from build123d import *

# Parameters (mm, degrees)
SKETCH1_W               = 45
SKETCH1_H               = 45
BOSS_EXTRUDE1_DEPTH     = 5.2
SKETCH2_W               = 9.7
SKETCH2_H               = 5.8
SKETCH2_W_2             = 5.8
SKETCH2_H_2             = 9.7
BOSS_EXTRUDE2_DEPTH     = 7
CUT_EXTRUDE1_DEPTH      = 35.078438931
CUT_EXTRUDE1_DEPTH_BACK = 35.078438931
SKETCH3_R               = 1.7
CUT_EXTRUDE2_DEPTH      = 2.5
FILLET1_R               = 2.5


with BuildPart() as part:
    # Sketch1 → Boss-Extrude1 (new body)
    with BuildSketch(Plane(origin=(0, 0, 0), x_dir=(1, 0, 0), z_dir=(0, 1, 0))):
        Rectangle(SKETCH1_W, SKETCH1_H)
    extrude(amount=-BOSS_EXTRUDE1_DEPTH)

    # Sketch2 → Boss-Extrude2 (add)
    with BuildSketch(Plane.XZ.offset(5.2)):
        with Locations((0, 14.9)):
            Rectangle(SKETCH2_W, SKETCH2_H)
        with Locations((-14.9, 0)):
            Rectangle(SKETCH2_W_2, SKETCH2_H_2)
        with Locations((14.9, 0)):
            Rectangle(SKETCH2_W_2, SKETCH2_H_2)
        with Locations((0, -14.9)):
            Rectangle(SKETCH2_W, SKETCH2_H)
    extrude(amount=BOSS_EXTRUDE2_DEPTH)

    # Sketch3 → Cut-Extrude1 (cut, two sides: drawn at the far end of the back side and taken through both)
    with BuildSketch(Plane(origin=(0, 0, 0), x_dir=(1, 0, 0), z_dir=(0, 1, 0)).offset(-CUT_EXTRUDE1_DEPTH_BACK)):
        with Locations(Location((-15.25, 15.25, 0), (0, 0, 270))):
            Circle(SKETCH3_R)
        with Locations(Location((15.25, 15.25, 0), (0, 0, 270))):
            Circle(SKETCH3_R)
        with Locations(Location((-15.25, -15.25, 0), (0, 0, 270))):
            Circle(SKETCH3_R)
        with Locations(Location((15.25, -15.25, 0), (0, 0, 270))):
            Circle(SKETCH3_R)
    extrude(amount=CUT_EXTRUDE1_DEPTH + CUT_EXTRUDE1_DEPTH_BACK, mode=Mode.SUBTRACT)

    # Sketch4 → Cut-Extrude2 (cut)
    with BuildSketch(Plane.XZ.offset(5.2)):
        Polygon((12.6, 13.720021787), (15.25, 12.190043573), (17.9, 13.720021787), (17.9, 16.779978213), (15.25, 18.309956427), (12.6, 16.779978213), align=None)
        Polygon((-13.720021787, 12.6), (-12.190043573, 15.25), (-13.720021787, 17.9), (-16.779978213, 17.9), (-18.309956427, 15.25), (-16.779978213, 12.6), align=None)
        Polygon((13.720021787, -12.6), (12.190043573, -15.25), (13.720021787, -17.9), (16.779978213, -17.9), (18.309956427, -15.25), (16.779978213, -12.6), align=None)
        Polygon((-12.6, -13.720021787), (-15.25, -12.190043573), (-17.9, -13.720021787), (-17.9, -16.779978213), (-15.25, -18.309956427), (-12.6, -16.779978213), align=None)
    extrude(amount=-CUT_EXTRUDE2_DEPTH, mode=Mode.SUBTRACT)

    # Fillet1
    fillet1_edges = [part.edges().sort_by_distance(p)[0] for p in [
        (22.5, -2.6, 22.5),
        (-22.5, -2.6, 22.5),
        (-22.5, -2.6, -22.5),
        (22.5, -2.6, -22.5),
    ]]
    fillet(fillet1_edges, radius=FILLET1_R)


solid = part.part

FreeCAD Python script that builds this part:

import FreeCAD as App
import Part
import Sketcher
Q = App.Units.Quantity


def edges_at(feature, points):
    """Names of the edges that pass closest to the given points."""
    edges = feature.Shape.Edges
    near = lambda p: min(range(len(edges)), key=lambda i: edges[i].distToShape(Part.Vertex(*p))[0])
    return sorted({f"Edge{near(p) + 1}" for p in points})


def add_polygon(sketch, points):
    """Adds a closed chain of lines whose ends are joined by coincident constraints."""
    first, n = sketch.GeometryCount, len(points)
    for a, b in zip(points, points[1:] + points[:1]):
        sketch.addGeometry(Part.LineSegment(App.Vector(*a, 0), App.Vector(*b, 0)), False)
    for i in range(n):
        sketch.addConstraint(Sketcher.Constraint("Coincident", first + i, 2, first + (i + 1) % n, 1))

doc = App.newDocument("Part")
body = doc.addObject("PartDesign::Body", "Body")

sketch1 = doc.addObject("Sketcher::SketchObject", "Sketch")
body.addObject(sketch1)
sketch1.AttachmentSupport = (doc.XZ_Plane, [""])
sketch1.MapMode = "FlatFace"
add_polygon(sketch1, [(-22, -22), (-22, 22), (22, 22), (22, -22)])
sketch1.addConstraint([
    Sketcher.Constraint("Vertical", 0),
    Sketcher.Constraint("Horizontal", 1),
    Sketcher.Constraint("Vertical", 2),
    Sketcher.Constraint("Horizontal", 3),
    Sketcher.Constraint("Symmetric", 0, 2, 2, 2, -1, 1),
    Sketcher.Constraint("Equal", 3, 0),
    Sketcher.Constraint("DistanceX", 1, 1, 1, 2, 45.0),
])
pad1 = doc.addObject("PartDesign::Pad", "Pad")
body.addObject(pad1)
pad1.Profile = sketch1
pad1.Length = 5.2

sketch2 = doc.addObject("Sketcher::SketchObject", "Sketch001")
body.addObject(sketch2)
sketch2.AttachmentSupport = (doc.XZ_Plane, [""])
sketch2.MapMode = "FlatFace"
sketch2.AttachmentOffset = App.Placement(App.Vector(0, 0, 5.2), App.Rotation())
add_polygon(sketch2, [(-5, 18), (-5, 12), (5, 12), (5, 18)])
add_polygon(sketch2, [(-18, 5), (-18, -5), (-12, -5), (-12, 5)])
add_polygon(sketch2, [(12, 5), (12, -5), (18, -5), (18, 5)])
add_polygon(sketch2, [(-5, -12), (-5, -18), (5, -18), (5, -12)])
sketch2.addConstraint([
    Sketcher.Constraint("Vertical", 0),
    Sketcher.Constraint("Horizontal", 1),
    Sketcher.Constraint("Vertical", 2),
    Sketcher.Constraint("Horizontal", 3),
    Sketcher.Constraint("Vertical", 4),
    Sketcher.Constraint("Horizontal", 5),
    Sketcher.Constraint("Vertical", 6),
    Sketcher.Constraint("Horizontal", 7),
    Sketcher.Constraint("Vertical", 8),
    Sketcher.Constraint("Horizontal", 9),
    Sketcher.Constraint("Vertical", 10),
    Sketcher.Constraint("Horizontal", 11),
    Sketcher.Constraint("Vertical", 12),
    Sketcher.Constraint("Horizontal", 13),
    Sketcher.Constraint("Vertical", 14),
    Sketcher.Constraint("Horizontal", 15),
    Sketcher.Constraint("Symmetric", 6, 2, 8, 2, -1, 1),
    Sketcher.Constraint("Symmetric", 4, 2, 10, 2, -1, 1),
    Sketcher.Constraint("Symmetric", 2, 2, 12, 2, -1, 1),
    Sketcher.Constraint("Symmetric", 0, 2, 14, 2, -1, 1),
    Sketcher.Constraint("Horizontal", 5, 2, 8, 2),
    Sketcher.Constraint("Vertical", 3, 2, 12, 2),
    Sketcher.Constraint("Equal", 11, 0),
    Sketcher.Constraint("Equal", 15, 4),
    Sketcher.Constraint("DistanceX", 1, 1, 1, 2, 9.7),
    Sketcher.Constraint("DistanceX", 5, 1, 5, 2, 5.8),
    Sketcher.Constraint("DistanceY", -1, 1, 0, 2, 12.0),
    Sketcher.Constraint("DistanceX", 5, 2, -1, 1, 12.0),
])
pad2 = doc.addObject("PartDesign::Pad", "Pad001")
body.addObject(pad2)
pad2.Profile = sketch2
pad2.Length = 7

sketch3 = doc.addObject("Sketcher::SketchObject", "Sketch002")
body.addObject(sketch3)
sketch3.AttachmentSupport = (doc.XZ_Plane, [""])
sketch3.MapMode = "FlatFace"
sketch3.addGeometry([
    Part.Circle(App.Vector(-15.2, -15.2, 0), App.Vector(0, 0, 1), 1.7),
    Part.Circle(App.Vector(15.2, -15.2, 0), App.Vector(0, 0, 1), 1.7),
    Part.Circle(App.Vector(-15.2, 15.2, 0), App.Vector(0, 0, 1), 1.7),
    Part.Circle(App.Vector(15.2, 15.2, 0), App.Vector(0, 0, 1), 1.7),
], False)
sketch3.addConstraint([
    Sketcher.Constraint("Equal", 0, 1),
    Sketcher.Constraint("Equal", 1, 2),
    Sketcher.Constraint("Equal", 2, 3),
    Sketcher.Constraint("Symmetric", 1, 3, 2, 3, -1, 1),
    Sketcher.Constraint("Symmetric", 0, 3, 3, 3, -1, 1),
    Sketcher.Constraint("Symmetric", 0, 3, 1, 3, -2),
    Sketcher.Constraint("Diameter", 0, 3.4),
    Sketcher.Constraint("DistanceX", 0, 3, 1, 3, 30.5),
    Sketcher.Constraint("DistanceY", 0, 3, 2, 3, 30.5),
])
pocket1 = doc.addObject("PartDesign::Pocket", "Pocket")
body.addObject(pocket1)
pocket1.Profile = sketch3
pocket1.Type = "ThroughAll"
pocket1.Midplane = True

sketch4 = doc.addObject("Sketcher::SketchObject", "Sketch003")
body.addObject(sketch4)
sketch4.AttachmentSupport = (doc.XZ_Plane, [""])
sketch4.MapMode = "FlatFace"
sketch4.AttachmentOffset = App.Placement(App.Vector(0, 0, 5.2), App.Rotation())
add_polygon(sketch4, [(12.6, 13.7), (15.2, 12.2), (17.9, 13.7), (17.9, 16.8), (15.2, 18.3), (12.6, 16.8)])
add_polygon(sketch4, [(-13.7, 12.6), (-12.2, 15.2), (-13.7, 17.9), (-16.8, 17.9), (-18.3, 15.2), (-16.8, 12.6)])
add_polygon(sketch4, [(13.7, -12.6), (12.2, -15.2), (13.7, -17.9), (16.8, -17.9), (18.3, -15.2), (16.8, -12.6)])
add_polygon(sketch4, [(-12.6, -13.7), (-15.2, -12.2), (-17.9, -13.7), (-17.9, -16.8), (-15.2, -18.3), (-12.6, -16.8)])
sketch4.addConstraint([
    Sketcher.Constraint("Vertical", 2),
    Sketcher.Constraint("Vertical", 5),
    Sketcher.Constraint("Horizontal", 8),
    Sketcher.Constraint("Horizontal", 11),
    Sketcher.Constraint("Horizontal", 14),
    Sketcher.Constraint("Horizontal", 17),
    Sketcher.Constraint("Vertical", 20),
    Sketcher.Constraint("Vertical", 23),
    Sketcher.Constraint("Symmetric", 6, 2, 12, 2, -1, 1),
    Sketcher.Constraint("Symmetric", 7, 2, 13, 2, -1, 1),
    Sketcher.Constraint("Symmetric", 9, 2, 15, 2, -1, 1),
    Sketcher.Constraint("Symmetric", 10, 2, 16, 2, -1, 1),
    Sketcher.Constraint("Symmetric", 0, 2, 18, 2, -1, 1),
    Sketcher.Constraint("Symmetric", 1, 2, 19, 2, -1, 1),
    Sketcher.Constraint("Symmetric", 3, 2, 21, 2, -1, 1),
    Sketcher.Constraint("Symmetric", 4, 2, 22, 2, -1, 1),
    Sketcher.Constraint("Parallel", 0, 3),
    Sketcher.Constraint("Parallel", 1, 4),
    Sketcher.Constraint("Perpendicular", 3, 6),
    Sketcher.Constraint("Perpendicular", 4, 7),
    Sketcher.Constraint("Parallel", 6, 9),
    Sketcher.Constraint("Parallel", 7, 10),
    Sketcher.Constraint("Parallel", 9, 12),
    Sketcher.Constraint("Parallel", 12, 15),
    Sketcher.Constraint("Perpendicular", 15, 18),
    Sketcher.Constraint("Parallel", 18, 21),
    Sketcher.Constraint("Horizontal", 2, 2, 4, 2),
    Sketcher.Constraint("Horizontal", 1, 2, 5, 2),
    Sketcher.Constraint("Horizontal", 6, 2, 9, 2),
    Sketcher.Constraint("Vertical", 0, 2, 3, 2),
    Sketcher.Constraint("Vertical", 8, 2, 10, 2),
    Sketcher.Constraint("Equal", 17, 2),
    Sketcher.Constraint("Equal", 4, 6),
    Sketcher.Constraint("Angle", 0, Q("-30 deg")),
    Sketcher.Constraint("DistanceX", -1, 1, 1, 2, 17.9),
    Sketcher.Constraint("DistanceX", -1, 1, 4, 2, 12.6),
    Sketcher.Constraint("DistanceY", -1, 1, 7, 2, 17.9),
    Sketcher.Constraint("DistanceX", 8, 2, 8, 1, 3.059956),
    Sketcher.Constraint("DistanceY", -1, 1, 1, 2, 13.720022),
    Sketcher.Constraint("DistanceX", 7, 2, -1, 1, 13.720022),
])
pocket2 = doc.addObject("PartDesign::Pocket", "Pocket001")
body.addObject(pocket2)
pocket2.Profile = sketch4
pocket2.Length = 2.5
doc.recompute()

fillet = doc.addObject("PartDesign::Fillet", "Fillet")
body.addObject(fillet)
fillet.Base = (pocket2, edges_at(pocket2, [
    (22.5, -2.6, 22.5),
    (-22.5, -2.6, 22.5),
    (-22.5, -2.6, -22.5),
    (22.5, -2.6, -22.5),
]))
fillet.Radius = 2.5

doc.recompute()
